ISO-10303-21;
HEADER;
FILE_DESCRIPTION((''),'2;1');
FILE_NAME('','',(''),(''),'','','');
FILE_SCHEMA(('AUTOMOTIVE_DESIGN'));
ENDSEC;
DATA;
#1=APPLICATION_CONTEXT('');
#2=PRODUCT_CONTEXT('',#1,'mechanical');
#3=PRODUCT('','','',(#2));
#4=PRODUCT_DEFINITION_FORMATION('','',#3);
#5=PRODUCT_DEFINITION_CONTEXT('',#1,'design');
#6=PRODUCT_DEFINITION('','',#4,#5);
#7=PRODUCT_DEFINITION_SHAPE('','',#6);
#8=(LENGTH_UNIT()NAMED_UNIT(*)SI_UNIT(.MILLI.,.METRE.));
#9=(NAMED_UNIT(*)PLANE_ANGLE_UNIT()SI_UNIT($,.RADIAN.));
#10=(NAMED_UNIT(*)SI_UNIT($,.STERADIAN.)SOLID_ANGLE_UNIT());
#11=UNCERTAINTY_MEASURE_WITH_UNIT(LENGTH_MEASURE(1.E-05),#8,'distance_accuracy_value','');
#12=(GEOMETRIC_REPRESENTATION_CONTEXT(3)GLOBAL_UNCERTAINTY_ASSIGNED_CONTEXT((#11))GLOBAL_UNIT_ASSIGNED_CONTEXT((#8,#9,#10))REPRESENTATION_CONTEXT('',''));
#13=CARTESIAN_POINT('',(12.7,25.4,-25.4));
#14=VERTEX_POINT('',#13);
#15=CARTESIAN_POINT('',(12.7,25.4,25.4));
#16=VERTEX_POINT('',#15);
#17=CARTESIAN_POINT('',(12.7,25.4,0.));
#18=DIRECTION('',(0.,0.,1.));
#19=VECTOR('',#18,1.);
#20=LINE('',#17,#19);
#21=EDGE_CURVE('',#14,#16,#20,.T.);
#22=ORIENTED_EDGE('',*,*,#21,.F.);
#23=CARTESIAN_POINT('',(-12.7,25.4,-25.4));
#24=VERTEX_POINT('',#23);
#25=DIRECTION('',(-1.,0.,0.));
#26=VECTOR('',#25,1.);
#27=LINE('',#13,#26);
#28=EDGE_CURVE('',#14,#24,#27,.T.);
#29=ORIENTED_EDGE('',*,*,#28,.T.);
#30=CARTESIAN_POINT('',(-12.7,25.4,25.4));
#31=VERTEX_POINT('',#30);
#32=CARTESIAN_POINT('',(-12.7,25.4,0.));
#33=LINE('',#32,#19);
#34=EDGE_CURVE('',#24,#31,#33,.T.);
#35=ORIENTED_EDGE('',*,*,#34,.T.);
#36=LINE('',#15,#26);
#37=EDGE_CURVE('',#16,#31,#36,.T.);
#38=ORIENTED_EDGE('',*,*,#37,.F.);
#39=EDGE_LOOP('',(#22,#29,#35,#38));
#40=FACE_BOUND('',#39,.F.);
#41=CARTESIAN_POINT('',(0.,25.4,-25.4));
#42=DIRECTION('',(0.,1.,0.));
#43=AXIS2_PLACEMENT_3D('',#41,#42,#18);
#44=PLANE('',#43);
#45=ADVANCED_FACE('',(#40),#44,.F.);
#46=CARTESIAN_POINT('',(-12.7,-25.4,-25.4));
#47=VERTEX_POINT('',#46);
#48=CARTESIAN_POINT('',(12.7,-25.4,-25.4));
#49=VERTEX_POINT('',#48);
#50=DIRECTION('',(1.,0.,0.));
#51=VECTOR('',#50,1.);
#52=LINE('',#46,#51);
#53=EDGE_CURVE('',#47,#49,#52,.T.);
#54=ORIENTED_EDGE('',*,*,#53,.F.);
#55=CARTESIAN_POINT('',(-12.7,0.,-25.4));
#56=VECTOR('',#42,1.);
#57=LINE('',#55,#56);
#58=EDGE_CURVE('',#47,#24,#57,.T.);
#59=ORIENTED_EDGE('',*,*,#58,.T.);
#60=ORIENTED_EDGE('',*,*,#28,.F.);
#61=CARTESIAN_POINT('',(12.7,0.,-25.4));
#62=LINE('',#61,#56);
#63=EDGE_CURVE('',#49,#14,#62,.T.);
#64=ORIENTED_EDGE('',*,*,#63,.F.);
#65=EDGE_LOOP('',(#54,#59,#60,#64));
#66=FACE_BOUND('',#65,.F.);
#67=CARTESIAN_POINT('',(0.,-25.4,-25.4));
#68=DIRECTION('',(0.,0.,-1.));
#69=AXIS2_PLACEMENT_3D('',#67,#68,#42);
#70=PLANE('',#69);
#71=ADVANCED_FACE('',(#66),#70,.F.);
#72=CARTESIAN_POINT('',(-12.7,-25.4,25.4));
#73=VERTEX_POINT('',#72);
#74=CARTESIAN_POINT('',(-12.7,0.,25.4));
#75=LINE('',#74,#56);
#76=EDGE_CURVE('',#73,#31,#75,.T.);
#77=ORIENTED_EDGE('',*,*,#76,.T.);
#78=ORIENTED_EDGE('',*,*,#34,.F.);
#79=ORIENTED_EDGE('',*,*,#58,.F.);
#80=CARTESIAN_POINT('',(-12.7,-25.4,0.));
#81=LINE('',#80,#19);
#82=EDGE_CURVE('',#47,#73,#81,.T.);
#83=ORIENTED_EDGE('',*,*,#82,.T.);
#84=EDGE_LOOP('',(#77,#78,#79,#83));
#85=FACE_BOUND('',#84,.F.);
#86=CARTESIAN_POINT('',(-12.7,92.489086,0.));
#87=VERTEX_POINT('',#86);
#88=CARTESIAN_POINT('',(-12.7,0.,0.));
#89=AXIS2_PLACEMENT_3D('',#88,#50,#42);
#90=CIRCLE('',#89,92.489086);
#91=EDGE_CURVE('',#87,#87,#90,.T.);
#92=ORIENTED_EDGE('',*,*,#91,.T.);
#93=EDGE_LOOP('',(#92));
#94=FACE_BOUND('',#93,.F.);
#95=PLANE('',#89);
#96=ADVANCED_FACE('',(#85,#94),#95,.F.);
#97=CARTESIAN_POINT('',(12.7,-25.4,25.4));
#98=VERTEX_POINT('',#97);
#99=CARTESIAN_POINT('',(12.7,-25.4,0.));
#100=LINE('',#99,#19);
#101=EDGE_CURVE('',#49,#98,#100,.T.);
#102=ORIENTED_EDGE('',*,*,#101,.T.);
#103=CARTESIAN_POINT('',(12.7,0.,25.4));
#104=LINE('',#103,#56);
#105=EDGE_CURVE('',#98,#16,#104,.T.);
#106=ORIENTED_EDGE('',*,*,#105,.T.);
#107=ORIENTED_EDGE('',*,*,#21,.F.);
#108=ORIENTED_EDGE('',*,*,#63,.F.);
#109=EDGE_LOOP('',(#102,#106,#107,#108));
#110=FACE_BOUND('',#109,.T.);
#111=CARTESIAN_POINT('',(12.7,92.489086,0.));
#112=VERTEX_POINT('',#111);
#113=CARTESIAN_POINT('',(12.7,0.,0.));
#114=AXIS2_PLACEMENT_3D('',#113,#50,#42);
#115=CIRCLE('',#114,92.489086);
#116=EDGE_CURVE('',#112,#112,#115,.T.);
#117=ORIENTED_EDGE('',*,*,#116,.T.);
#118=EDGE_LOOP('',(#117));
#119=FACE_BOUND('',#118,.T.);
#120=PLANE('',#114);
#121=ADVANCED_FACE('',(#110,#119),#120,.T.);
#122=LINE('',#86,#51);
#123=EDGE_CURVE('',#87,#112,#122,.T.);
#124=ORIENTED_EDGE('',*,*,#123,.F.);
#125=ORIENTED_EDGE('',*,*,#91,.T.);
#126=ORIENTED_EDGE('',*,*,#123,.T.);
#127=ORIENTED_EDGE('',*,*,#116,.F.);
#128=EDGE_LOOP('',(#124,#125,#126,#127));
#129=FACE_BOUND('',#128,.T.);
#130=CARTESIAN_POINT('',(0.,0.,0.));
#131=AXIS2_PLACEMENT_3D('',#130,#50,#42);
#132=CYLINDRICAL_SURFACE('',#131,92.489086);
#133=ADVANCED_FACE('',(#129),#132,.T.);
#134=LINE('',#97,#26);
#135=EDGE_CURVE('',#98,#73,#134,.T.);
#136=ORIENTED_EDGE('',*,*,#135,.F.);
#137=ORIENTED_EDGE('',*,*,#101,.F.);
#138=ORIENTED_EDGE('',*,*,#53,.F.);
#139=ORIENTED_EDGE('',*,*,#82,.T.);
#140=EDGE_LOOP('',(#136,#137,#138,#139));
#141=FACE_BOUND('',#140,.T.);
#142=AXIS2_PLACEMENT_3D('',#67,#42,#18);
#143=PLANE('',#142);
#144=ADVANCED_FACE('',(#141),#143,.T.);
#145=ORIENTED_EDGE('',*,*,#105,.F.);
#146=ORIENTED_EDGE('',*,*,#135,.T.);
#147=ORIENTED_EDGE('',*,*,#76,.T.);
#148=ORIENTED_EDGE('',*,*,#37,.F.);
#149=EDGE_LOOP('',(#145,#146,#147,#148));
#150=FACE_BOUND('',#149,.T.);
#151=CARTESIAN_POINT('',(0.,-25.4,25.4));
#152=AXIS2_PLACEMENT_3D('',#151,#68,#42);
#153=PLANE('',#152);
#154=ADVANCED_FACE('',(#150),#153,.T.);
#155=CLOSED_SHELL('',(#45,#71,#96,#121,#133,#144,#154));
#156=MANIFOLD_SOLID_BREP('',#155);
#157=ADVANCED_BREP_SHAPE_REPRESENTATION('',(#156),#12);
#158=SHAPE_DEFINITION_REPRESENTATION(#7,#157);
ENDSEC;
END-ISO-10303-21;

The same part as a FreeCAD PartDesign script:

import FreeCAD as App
import Part
import Sketcher

V = App.Vector
Q = App.Units.Quantity


def add_polygon(sketch, points):
    """Adds a closed chain of lines whose ends are joined by coincident constraints."""
    first, n = sketch.GeometryCount, len(points)
    for a, b in zip(points, points[1:] + points[:1]):
        sketch.addGeometry(Part.LineSegment(App.Vector(*a, 0), App.Vector(*b, 0)), False)
    for i in range(n):
        sketch.addConstraint(Sketcher.Constraint("Coincident", first + i, 2, first + (i + 1) % n, 1))

doc = App.newDocument("Part")
body = doc.addObject("PartDesign::Body", "Body")

# Sketch on YZ plane
sketch1 = body.newObject("Sketcher::SketchObject", "Sketch")
sketch1.AttachmentSupport = (doc.getObject("YZ_Plane"), [""])
sketch1.MapMode = "FlatFace"
sketch1.addGeometry(Part.Circle(V(0, 0, 0), V(0, 0, 1), 92), False)  # 0
add_polygon(sketch1, [(25, -25), (-25, -25), (-25, 25), (25, 25)])  # lines 1-4
sketch1.addConstraint([
    Sketcher.Constraint("Horizontal", 1),
    Sketcher.Constraint("Vertical", 2),
    Sketcher.Constraint("Horizontal", 3),
    Sketcher.Constraint("Vertical", 4),
    Sketcher.Constraint("Coincident", 0, 3, -1, 1),
    Sketcher.Constraint("Symmetric", 1, 2, 3, 2, -1, 1),
    Sketcher.Constraint("Equal", 3, 2),
    Sketcher.Constraint("DistanceX", 1, 2, 1, 1, Q("2 in")),
    Sketcher.Constraint("Diameter", 0, Q("184.978172 mm")),
])
pad1 = body.newObject("PartDesign::Pad", "Pad")
pad1.Profile = sketch1
pad1.Length = Q("1 in")
pad1.Midplane = True

doc.recompute()
